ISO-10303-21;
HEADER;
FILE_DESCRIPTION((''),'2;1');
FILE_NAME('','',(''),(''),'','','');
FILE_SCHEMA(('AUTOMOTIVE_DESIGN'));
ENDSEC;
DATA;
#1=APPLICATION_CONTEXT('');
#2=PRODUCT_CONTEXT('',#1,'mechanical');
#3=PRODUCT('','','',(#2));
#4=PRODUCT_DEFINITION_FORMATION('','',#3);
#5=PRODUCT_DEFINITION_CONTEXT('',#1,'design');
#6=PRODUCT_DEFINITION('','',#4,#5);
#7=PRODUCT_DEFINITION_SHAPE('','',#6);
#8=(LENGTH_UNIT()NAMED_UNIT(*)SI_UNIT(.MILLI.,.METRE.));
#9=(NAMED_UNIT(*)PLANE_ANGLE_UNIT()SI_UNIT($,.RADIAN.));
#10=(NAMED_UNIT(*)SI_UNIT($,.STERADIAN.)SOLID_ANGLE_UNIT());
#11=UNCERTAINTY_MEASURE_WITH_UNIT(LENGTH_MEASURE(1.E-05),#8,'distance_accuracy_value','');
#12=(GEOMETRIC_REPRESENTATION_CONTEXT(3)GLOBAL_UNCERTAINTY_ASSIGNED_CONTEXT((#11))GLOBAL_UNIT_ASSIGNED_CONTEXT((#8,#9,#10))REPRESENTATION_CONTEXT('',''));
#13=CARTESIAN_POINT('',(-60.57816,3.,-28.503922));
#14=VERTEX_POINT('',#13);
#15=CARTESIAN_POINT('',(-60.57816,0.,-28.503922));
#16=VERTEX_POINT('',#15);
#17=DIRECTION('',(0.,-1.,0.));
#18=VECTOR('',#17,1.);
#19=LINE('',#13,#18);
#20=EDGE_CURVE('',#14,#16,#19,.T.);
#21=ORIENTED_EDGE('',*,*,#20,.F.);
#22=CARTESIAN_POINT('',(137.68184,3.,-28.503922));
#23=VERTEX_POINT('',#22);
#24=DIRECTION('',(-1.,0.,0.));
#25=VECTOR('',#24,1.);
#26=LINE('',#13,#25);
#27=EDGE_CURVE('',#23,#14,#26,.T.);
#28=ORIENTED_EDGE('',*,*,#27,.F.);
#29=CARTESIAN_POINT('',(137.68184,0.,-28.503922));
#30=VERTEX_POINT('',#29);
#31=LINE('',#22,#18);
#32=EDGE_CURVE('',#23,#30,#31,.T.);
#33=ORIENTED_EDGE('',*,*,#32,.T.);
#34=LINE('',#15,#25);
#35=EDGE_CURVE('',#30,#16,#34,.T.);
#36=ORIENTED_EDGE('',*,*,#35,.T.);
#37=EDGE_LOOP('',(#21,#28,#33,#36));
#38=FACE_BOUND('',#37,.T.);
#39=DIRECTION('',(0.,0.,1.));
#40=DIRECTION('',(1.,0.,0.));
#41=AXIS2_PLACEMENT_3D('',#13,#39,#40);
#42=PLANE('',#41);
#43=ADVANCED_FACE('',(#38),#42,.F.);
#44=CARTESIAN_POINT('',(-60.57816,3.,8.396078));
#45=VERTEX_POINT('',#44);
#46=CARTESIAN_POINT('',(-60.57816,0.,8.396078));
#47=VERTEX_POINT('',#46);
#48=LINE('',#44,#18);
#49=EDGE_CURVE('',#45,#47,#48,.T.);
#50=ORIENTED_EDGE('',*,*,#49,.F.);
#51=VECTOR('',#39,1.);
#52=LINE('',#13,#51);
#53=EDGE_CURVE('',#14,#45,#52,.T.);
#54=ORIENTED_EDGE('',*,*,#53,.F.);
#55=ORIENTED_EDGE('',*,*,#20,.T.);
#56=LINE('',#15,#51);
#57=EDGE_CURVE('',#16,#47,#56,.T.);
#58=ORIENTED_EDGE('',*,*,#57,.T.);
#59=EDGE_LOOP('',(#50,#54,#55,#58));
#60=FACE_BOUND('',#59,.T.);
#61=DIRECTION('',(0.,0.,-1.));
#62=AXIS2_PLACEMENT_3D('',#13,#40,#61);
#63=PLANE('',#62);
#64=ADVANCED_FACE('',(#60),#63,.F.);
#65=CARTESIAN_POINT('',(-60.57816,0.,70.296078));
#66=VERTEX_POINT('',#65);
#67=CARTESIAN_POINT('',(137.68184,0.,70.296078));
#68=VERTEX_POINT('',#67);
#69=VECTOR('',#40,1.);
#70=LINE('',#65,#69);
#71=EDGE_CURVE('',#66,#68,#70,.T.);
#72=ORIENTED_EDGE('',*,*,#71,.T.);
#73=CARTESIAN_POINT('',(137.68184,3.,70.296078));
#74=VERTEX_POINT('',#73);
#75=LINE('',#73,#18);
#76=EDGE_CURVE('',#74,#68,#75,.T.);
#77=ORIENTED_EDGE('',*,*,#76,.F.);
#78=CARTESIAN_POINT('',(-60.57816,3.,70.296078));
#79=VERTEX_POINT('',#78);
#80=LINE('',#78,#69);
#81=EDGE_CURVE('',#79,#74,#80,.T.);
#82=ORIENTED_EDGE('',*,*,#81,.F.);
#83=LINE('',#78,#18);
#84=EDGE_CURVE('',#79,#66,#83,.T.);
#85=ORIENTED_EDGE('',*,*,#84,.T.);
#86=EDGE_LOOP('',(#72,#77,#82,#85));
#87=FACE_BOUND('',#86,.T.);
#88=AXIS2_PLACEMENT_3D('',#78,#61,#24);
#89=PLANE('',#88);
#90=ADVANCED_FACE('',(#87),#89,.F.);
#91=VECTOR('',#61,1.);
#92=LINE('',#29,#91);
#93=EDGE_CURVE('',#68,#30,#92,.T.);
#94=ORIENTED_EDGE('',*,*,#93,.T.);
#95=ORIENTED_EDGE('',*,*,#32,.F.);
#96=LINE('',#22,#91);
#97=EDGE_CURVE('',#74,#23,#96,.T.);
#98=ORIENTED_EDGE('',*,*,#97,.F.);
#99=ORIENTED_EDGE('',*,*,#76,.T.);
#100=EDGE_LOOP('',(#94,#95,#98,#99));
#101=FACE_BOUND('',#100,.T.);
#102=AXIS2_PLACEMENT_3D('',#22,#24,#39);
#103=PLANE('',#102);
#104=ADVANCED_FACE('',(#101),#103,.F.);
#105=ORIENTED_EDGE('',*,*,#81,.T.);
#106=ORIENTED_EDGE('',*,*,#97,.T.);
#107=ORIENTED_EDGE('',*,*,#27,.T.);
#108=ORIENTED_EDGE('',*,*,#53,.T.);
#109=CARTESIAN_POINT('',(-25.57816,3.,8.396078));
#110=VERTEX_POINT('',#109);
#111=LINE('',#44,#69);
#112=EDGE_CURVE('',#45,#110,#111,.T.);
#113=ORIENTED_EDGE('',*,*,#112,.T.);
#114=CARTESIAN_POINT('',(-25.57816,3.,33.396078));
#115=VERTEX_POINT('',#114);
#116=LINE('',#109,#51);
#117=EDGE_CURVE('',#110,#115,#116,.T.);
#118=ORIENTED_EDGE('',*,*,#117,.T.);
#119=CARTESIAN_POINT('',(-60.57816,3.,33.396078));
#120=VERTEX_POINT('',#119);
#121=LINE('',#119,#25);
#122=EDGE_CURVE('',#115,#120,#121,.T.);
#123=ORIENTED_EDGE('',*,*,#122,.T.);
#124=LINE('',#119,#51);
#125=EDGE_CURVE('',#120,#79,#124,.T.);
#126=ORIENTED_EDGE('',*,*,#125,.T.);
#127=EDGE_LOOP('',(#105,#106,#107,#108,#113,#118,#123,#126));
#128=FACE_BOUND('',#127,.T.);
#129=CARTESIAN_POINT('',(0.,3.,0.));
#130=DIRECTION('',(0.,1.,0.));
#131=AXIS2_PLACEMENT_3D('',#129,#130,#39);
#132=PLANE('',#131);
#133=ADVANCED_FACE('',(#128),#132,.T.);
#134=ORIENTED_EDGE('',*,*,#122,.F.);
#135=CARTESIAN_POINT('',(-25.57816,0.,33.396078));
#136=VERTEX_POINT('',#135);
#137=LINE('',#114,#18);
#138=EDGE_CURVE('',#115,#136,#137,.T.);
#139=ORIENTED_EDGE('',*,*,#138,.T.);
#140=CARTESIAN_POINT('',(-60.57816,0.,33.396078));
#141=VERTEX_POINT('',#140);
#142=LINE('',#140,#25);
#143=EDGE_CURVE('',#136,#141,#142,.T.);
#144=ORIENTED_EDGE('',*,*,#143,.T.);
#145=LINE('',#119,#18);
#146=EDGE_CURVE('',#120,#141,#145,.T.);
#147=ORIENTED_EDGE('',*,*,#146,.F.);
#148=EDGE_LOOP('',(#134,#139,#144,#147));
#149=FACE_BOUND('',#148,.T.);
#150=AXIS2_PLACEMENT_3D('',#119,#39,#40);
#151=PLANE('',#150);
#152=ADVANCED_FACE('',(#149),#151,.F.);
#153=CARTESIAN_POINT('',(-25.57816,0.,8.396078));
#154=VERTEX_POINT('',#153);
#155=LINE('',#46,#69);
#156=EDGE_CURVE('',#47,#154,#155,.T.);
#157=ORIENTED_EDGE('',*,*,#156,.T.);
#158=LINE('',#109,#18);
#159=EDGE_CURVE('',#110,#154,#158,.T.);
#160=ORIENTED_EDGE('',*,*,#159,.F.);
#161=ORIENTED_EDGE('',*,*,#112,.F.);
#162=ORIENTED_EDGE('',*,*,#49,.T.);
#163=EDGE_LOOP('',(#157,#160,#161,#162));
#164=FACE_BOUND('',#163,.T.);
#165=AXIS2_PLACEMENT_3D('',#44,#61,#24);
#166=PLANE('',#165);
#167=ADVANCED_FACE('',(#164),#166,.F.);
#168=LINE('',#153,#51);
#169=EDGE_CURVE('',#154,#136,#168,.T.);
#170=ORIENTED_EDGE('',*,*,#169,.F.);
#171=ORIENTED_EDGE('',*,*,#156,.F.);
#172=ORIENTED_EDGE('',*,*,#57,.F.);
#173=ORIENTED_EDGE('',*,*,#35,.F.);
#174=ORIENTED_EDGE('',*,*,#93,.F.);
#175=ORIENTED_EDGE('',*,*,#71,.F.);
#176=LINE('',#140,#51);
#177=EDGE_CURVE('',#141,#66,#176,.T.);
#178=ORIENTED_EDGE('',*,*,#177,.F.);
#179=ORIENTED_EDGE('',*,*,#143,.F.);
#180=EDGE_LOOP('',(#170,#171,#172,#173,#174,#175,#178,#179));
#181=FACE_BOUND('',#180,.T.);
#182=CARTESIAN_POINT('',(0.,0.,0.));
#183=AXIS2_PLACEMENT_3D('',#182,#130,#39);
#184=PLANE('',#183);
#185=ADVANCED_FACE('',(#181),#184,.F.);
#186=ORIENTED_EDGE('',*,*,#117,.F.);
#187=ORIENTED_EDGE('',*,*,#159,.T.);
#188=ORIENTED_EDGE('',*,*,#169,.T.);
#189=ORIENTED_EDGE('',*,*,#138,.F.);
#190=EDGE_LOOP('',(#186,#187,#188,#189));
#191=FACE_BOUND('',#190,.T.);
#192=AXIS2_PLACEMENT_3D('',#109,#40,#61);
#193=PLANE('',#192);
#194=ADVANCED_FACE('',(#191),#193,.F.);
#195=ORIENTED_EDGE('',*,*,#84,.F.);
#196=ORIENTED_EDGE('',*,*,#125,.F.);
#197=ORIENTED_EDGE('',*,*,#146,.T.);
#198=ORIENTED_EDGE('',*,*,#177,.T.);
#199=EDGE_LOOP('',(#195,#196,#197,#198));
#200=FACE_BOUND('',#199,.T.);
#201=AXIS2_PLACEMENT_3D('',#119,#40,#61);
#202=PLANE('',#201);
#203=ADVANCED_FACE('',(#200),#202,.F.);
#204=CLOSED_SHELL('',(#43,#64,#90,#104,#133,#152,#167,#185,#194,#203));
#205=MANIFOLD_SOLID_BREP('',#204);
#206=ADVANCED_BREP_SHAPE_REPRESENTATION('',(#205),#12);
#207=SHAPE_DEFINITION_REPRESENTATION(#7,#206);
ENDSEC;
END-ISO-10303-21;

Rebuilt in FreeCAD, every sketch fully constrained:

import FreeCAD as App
import Part
import Sketcher
Q = App.Units.Quantity


def add_polygon(sketch, points):
    """Adds a closed chain of lines whose ends are joined by coincident constraints."""
    first, n = sketch.GeometryCount, len(points)
    for a, b in zip(points, points[1:] + points[:1]):
        sketch.addGeometry(Part.LineSegment(App.Vector(*a, 0), App.Vector(*b, 0)), False)
    for i in range(n):
        sketch.addConstraint(Sketcher.Constraint("Coincident", first + i, 2, first + (i + 1) % n, 1))

doc = App.newDocument("Part")
body = doc.addObject("PartDesign::Body", "Body")

sketch1 = body.newObject("Sketcher::SketchObject", "Sketch")
sketch1.AttachmentSupport = (doc.getObject("XZ_Plane"), [""])
sketch1.MapMode = "FlatFace"
add_polygon(sketch1, [(-61, 33), (-61, 70), (138, 70), (138, -29), (-61, -29), (-61, 8), (-26, 8), (-26, 33)])
sketch1.addConstraint([
    Sketcher.Constraint("Vertical", 0),
    Sketcher.Constraint("Horizontal", 1),
    Sketcher.Constraint("Vertical", 2),
    Sketcher.Constraint("Horizontal", 3),
    Sketcher.Constraint("Vertical", 4),
    Sketcher.Constraint("Horizontal", 5),
    Sketcher.Constraint("Vertical", 6),
    Sketcher.Constraint("Horizontal", 7),
    Sketcher.Constraint("Vertical", 0, 2, 3, 2),
    Sketcher.Constraint("Equal", 0, 4),
    Sketcher.Constraint("DistanceX", 5, 1, 5, 2, Q("35 mm")),
    Sketcher.Constraint("DistanceY", 6, 1, 6, 2, Q("25 mm")),
    Sketcher.Constraint("DistanceY", 0, 1, 0, 2, Q("36.9 mm")),
    Sketcher.Constraint("DistanceX", 1, 1, 1, 2, Q("198.26 mm")),
    Sketcher.Constraint("DistanceX", 0, 2, -1, 1, Q("60.57816 mm")),
    Sketcher.Constraint("DistanceY", -1, 1, 0, 2, Q("70.296078 mm")),
])
pad1 = body.newObject("PartDesign::Pad", "Pad")
pad1.Profile = sketch1
pad1.Length = 3
pad1.Reversed = True

doc.recompute()
